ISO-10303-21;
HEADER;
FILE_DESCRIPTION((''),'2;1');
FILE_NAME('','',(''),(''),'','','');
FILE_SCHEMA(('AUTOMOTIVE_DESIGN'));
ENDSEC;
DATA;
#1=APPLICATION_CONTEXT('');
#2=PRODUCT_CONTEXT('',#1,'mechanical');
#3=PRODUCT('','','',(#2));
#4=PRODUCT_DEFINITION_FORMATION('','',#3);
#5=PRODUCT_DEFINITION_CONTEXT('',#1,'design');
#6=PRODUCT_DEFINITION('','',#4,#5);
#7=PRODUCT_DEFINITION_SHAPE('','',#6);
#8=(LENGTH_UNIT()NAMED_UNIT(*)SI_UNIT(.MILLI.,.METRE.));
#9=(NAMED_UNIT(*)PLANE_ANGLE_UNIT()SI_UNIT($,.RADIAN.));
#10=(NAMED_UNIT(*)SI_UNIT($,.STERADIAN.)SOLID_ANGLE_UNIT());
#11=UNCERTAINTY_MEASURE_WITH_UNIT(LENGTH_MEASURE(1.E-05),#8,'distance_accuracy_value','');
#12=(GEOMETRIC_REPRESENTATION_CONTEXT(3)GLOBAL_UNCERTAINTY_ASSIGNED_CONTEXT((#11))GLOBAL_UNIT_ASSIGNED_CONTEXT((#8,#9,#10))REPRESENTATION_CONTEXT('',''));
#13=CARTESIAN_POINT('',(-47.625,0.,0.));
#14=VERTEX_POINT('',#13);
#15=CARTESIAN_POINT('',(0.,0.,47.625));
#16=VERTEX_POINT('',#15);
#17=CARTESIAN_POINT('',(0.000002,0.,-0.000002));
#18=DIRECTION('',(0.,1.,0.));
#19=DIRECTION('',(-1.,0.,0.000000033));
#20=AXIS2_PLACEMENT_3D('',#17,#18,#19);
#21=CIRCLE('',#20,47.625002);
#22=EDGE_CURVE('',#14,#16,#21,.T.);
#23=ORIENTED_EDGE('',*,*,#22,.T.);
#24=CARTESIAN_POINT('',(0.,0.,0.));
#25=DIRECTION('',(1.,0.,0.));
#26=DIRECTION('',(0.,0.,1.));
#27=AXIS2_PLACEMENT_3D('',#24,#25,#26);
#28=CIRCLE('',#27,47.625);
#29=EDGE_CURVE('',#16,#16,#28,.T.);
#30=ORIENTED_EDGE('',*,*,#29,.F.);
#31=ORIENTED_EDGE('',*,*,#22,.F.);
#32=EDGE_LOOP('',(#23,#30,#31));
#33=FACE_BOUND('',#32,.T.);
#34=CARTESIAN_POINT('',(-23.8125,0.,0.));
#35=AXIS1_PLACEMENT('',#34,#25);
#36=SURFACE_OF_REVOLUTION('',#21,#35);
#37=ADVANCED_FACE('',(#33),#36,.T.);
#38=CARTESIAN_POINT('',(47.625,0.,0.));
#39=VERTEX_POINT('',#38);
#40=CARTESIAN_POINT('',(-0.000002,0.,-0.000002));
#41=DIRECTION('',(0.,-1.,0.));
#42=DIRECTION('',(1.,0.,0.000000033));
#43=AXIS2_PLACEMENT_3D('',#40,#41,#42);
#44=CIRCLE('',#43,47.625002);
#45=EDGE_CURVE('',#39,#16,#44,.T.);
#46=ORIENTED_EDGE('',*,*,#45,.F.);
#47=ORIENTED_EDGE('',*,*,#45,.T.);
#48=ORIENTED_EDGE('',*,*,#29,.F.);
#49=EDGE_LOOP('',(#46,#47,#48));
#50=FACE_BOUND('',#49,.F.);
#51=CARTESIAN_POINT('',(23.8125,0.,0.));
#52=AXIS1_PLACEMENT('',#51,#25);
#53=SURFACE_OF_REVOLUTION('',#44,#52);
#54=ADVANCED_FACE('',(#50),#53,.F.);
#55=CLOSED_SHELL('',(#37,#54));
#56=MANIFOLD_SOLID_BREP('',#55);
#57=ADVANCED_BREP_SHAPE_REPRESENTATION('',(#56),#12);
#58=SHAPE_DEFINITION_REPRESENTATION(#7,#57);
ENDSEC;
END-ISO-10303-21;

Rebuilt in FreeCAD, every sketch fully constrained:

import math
import FreeCAD as App
import Part
import Sketcher
from FreeCAD import Vector
Q = App.Units.Quantity

doc = App.newDocument("Part")
body = doc.addObject("PartDesign::Body", "Body")

sketch1 = doc.addObject("Sketcher::SketchObject", "Sketch")
body.addObject(sketch1)
sketch1.AttachmentSupport = (doc.XZ_Plane, [""])
sketch1.MapMode = "FlatFace"
sketch1.addGeometry(Part.LineSegment(Vector(0, 48, 0), Vector(0, 0, 0)), False)
sketch1.addGeometry(Part.LineSegment(Vector(0, 0, 0), Vector(48, 0, 0)), False)
sketch1.addGeometry(Part.ArcOfCircle(Part.Circle(Vector(0, 0, 0), Vector(0, 0, 1), 48), math.radians(0), math.radians(90)), False)
sketch1.addConstraint(Sketcher.Constraint("Coincident", 0, 2, 1, 1))
sketch1.addConstraint(Sketcher.Constraint("Coincident", 1, 2, 2, 1))
sketch1.addConstraint(Sketcher.Constraint("Coincident", 2, 2, 0, 1))
sketch1.addConstraint(Sketcher.Constraint("Vertical", 0))
sketch1.addConstraint(Sketcher.Constraint("Horizontal", 1))
sketch1.addConstraint(Sketcher.Constraint("Coincident", 2, 3, -1, 1))
sketch1.addConstraint(Sketcher.Constraint("Coincident", 0, 2, -1, 1))
sketch1.addConstraint(Sketcher.Constraint("Radius", 2, Q("1.8750001 in")))
revolution = doc.addObject("PartDesign::Revolution", "Revolution")
body.addObject(revolution)
revolution.Profile = sketch1
revolution.ReferenceAxis = (sketch1, ["H_Axis"])
revolution.Angle = 360
body2 = doc.addObject("PartDesign::Body", "Body001")
doc.recompute()

body2.BaseFeature = body
doc.recompute()

mirroring = doc.addObject("Part::Mirroring", "Mirroring")
mirroring.Source = body
mirroring.Base = Vector(0, 0, 0)
mirroring.Normal = Vector(-1, 0, 0)
body3 = doc.addObject("PartDesign::Body", "Body002")
body3.BaseFeature = mirroring
boolean = doc.addObject("PartDesign::Boolean", "Boolean")
body2.addObject(boolean)
boolean.Type = "Fuse"
boolean.addObjects([body3])
doc.recompute()
mirroring.Visibility = False

doc.recompute()
